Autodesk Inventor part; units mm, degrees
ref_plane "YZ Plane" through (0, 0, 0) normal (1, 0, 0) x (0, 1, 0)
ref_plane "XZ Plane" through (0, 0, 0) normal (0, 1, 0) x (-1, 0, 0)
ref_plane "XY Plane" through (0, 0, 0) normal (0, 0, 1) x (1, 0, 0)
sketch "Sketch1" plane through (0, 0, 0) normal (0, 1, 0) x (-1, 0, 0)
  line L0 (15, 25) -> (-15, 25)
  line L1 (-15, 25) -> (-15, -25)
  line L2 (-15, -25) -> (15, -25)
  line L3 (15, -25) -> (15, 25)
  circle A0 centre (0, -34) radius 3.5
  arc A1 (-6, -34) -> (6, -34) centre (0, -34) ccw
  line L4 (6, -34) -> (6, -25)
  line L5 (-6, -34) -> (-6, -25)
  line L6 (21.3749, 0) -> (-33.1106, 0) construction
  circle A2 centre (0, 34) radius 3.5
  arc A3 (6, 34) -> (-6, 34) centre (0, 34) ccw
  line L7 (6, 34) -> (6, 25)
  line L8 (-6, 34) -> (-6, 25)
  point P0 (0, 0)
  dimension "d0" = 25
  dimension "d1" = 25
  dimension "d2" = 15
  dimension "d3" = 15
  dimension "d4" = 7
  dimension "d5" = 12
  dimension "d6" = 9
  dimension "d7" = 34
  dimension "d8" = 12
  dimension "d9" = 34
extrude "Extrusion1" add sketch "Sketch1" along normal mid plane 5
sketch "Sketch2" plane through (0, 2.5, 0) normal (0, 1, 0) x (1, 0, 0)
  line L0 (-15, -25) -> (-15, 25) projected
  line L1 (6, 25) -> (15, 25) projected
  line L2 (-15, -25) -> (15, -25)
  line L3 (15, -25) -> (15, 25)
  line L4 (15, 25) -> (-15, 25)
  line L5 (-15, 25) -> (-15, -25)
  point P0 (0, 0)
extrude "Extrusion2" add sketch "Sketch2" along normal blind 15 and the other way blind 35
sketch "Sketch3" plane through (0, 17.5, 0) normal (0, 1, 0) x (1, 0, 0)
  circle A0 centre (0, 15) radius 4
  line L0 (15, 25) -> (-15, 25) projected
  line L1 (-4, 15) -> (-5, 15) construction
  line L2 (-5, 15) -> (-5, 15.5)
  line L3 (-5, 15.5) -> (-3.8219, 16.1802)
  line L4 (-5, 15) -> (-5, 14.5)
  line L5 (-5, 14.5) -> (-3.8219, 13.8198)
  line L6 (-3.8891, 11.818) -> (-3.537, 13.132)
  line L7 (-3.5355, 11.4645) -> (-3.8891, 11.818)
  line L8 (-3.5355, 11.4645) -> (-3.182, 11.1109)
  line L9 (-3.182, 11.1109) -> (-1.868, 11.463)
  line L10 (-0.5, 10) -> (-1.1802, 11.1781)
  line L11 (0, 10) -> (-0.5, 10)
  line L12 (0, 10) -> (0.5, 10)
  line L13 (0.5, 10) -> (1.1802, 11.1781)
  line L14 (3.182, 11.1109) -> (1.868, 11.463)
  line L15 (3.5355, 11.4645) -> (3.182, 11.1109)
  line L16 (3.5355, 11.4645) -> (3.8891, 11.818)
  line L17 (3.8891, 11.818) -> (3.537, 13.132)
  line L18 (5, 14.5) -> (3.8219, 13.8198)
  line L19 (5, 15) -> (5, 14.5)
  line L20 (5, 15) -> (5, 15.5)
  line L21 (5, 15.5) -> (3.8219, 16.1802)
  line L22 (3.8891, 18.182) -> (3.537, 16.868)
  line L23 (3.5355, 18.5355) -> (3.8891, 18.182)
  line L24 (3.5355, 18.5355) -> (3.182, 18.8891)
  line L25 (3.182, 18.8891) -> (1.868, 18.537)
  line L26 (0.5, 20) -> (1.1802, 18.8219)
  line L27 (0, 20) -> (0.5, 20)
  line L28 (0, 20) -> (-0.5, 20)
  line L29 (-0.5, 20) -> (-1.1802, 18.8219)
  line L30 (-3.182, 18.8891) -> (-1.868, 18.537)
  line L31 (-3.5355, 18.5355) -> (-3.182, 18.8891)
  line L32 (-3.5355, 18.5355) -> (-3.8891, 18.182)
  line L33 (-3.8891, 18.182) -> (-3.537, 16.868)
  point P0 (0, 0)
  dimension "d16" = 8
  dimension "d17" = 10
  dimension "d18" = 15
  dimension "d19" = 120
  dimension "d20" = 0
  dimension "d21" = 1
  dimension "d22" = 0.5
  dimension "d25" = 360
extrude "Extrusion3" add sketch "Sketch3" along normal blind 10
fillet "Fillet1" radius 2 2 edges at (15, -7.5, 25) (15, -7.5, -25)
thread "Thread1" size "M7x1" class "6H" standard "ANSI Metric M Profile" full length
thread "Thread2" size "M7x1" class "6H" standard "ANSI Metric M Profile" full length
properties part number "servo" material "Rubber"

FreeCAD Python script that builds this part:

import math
import FreeCAD as App
import Part
import Sketcher
from FreeCAD import Vector
Q = App.Units.Quantity


def edges_at(feature, points):
    """Names of the edges that pass closest to the given points."""
    edges = feature.Shape.Edges
    near = lambda p: min(range(len(edges)), key=lambda i: edges[i].distToShape(Part.Vertex(*p))[0])
    return sorted({f"Edge{near(p) + 1}" for p in points})

doc = App.newDocument("Part")
body = doc.addObject("PartDesign::Body", "Body")

# Sketch on XZ plane
sketch1 = body.newObject("Sketcher::SketchObject", "Sketch")
sketch1.AttachmentSupport = (doc.getObject("XZ_Plane"), [""])
sketch1.MapMode = "FlatFace"
sketch1.addGeometry(Part.LineSegment(Vector(-15, -25, 0), Vector(-15, 25, 0)), False)
sketch1.addGeometry(Part.LineSegment(Vector(-15, 25, 0), Vector(-6, 25, 0)), False)
sketch1.addGeometry(Part.LineSegment(Vector(-6, 25, 0), Vector(-6, 34, 0)), False)
sketch1.addGeometry(Part.ArcOfCircle(Part.Circle(Vector(0, 34, 0), Vector(0, 0, 1), 6), math.radians(0), math.radians(180)), False)
sketch1.addGeometry(Part.LineSegment(Vector(6, 34, 0), Vector(6, 25, 0)), False)
sketch1.addGeometry(Part.LineSegment(Vector(6, 25, 0), Vector(15, 25, 0)), False)
sketch1.addGeometry(Part.LineSegment(Vector(15, 25, 0), Vector(15, -25, 0)), False)
sketch1.addGeometry(Part.LineSegment(Vector(15, -25, 0), Vector(6, -25, 0)), False)
sketch1.addGeometry(Part.LineSegment(Vector(6, -25, 0), Vector(6, -34, 0)), False)
sketch1.addGeometry(Part.ArcOfCircle(Part.Circle(Vector(0, -34, 0), Vector(0, 0, 1), 6), math.radians(180), math.radians(360)), False)
sketch1.addGeometry(Part.LineSegment(Vector(-6, -34, 0), Vector(-6, -25, 0)), False)
sketch1.addGeometry(Part.LineSegment(Vector(-6, -25, 0), Vector(-15, -25, 0)), False)
sketch1.addGeometry(Part.Circle(Vector(0, -34, 0), Vector(0, 0, 1), 3.5), False)
sketch1.addGeometry(Part.Circle(Vector(0, 34, 0), Vector(0, 0, 1), 3.5), False)
sketch1.addConstraint(Sketcher.Constraint("Coincident", 0, 2, 1, 1))
sketch1.addConstraint(Sketcher.Constraint("Coincident", 1, 2, 2, 1))
sketch1.addConstraint(Sketcher.Constraint("Tangent", 2, 2, 3, 2))
sketch1.addConstraint(Sketcher.Constraint("Tangent", 3, 1, 4, 1))
sketch1.addConstraint(Sketcher.Constraint("Coincident", 4, 2, 5, 1))
sketch1.addConstraint(Sketcher.Constraint("Coincident", 5, 2, 6, 1))
sketch1.addConstraint(Sketcher.Constraint("Coincident", 6, 2, 7, 1))
sketch1.addConstraint(Sketcher.Constraint("Coincident", 7, 2, 8, 1))
sketch1.addConstraint(Sketcher.Constraint("Tangent", 8, 2, 9, 2))
sketch1.addConstraint(Sketcher.Constraint("Tangent", 9, 1, 10, 1))
sketch1.addConstraint(Sketcher.Constraint("Coincident", 10, 2, 11, 1))
sketch1.addConstraint(Sketcher.Constraint("Coincident", 11, 2, 0, 1))
sketch1.addConstraint(Sketcher.Constraint("Vertical", 0))
sketch1.addConstraint(Sketcher.Constraint("Horizontal", 1))
sketch1.addConstraint(Sketcher.Constraint("Vertical", 2))
sketch1.addConstraint(Sketcher.Constraint("Vertical", 4))
sketch1.addConstraint(Sketcher.Constraint("Horizontal", 5))
sketch1.addConstraint(Sketcher.Constraint("Vertical", 6))
sketch1.addConstraint(Sketcher.Constraint("Horizontal", 7))
sketch1.addConstraint(Sketcher.Constraint("Vertical", 8))
sketch1.addConstraint(Sketcher.Constraint("Vertical", 10))
sketch1.addConstraint(Sketcher.Constraint("Horizontal", 11))
sketch1.addConstraint(Sketcher.Constraint("Coincident", 12, 3, 9, 3))
sketch1.addConstraint(Sketcher.Constraint("Coincident", 13, 3, 3, 3))
sketch1.addConstraint(Sketcher.Constraint("Equal", 3, 9))
sketch1.addConstraint(Sketcher.Constraint("Equal", 12, 13))
sketch1.addConstraint(Sketcher.Constraint("Symmetric", 3, 3, 9, 3, -1, 1))
sketch1.addConstraint(Sketcher.Constraint("Symmetric", 0, 2, 6, 2, -1, 1))
sketch1.addConstraint(Sketcher.Constraint("Symmetric", 1, 2, 4, 2, -2))
sketch1.addConstraint(Sketcher.Constraint("Horizontal", 7, 2, 10, 2))
sketch1.addConstraint(Sketcher.Constraint("Equal", 11, 2))
sketch1.addConstraint(Sketcher.Constraint("Diameter", 12, Q("7 mm")))
sketch1.addConstraint(Sketcher.Constraint("Radius", 3, Q("6 mm")))
sketch1.addConstraint(Sketcher.Constraint("DistanceX", 1, 1, 1, 2, Q("9 mm")))
sketch1.addConstraint(Sketcher.Constraint("DistanceY", -1, 1, 3, 3, Q("34 mm")))
pad1 = body.newObject("PartDesign::Pad", "Pad")
pad1.Profile = sketch1
pad1.Length = 5
pad1.Midplane = True

# Sketch on XZ plane
sketch2 = body.newObject("Sketcher::SketchObject", "Sketch001")
sketch2.AttachmentSupport = (doc.getObject("XZ_Plane"), [""])
sketch2.MapMode = "FlatFace"
sketch2.AttachmentOffset = App.Placement(Vector(0, 0, -2.5), App.Rotation())
sketch2.addGeometry(Part.LineSegment(Vector(-15, -25, 0), Vector(-15, 25, 0)), False)
sketch2.addGeometry(Part.LineSegment(Vector(-15, 25, 0), Vector(15, 25, 0)), False)
sketch2.addGeometry(Part.LineSegment(Vector(15, 25, 0), Vector(15, -25, 0)), False)
sketch2.addGeometry(Part.LineSegment(Vector(15, -25, 0), Vector(-15, -25, 0)), False)
sketch2.addConstraint(Sketcher.Constraint("Coincident", 0, 2, 1, 1))
sketch2.addConstraint(Sketcher.Constraint("Coincident", 1, 2, 2, 1))
sketch2.addConstraint(Sketcher.Constraint("Coincident", 2, 2, 3, 1))
sketch2.addConstraint(Sketcher.Constraint("Coincident", 3, 2, 0, 1))
sketch2.addConstraint(Sketcher.Constraint("Vertical", 0))
sketch2.addConstraint(Sketcher.Constraint("Horizontal", 1))
sketch2.addConstraint(Sketcher.Constraint("Vertical", 2))
sketch2.addConstraint(Sketcher.Constraint("Horizontal", 3))
sketch2.addConstraint(Sketcher.Constraint("Symmetric", 0, 2, 2, 2, -1, 1))
sketch2.addConstraint(Sketcher.Constraint("DistanceX", 1, 1, 1, 2, Q("30 mm")))
sketch2.addConstraint(Sketcher.Constraint("DistanceY", 0, 1, 0, 2, Q("50 mm")))
pad2 = body.newObject("PartDesign::Pad", "Pad001")
pad2.Profile = sketch2
pad2.Type = "TwoLengths"
pad2.Length = 15
pad2.Length2 = 35
pad2.Reversed = True

# Sketch on XZ plane
sketch3 = body.newObject("Sketcher::SketchObject", "Sketch002")
sketch3.AttachmentSupport = (doc.getObject("XZ_Plane"), [""])
sketch3.MapMode = "FlatFace"
sketch3.AttachmentOffset = App.Placement(Vector(0, 0, -17.5), App.Rotation())
sketch3.addGeometry(Part.ArcOfCircle(Part.Circle(Vector(0, -15, 0), Vector(0, 0, 1), 4), math.radians(17.16), math.radians(27.84)), False)
sketch3.addGeometry(Part.LineSegment(Vector(3.82, -13.82, 0), Vector(5, -14.5, 0)), False)
sketch3.addGeometry(Part.LineSegment(Vector(5, -14.5, 0), Vector(5, -15.5, 0)), False)
sketch3.addGeometry(Part.LineSegment(Vector(5, -15.5, 0), Vector(3.82, -16.18, 0)), False)
sketch3.addGeometry(Part.ArcOfCircle(Part.Circle(Vector(0, -15, 0), Vector(0, 0, 1), 4), math.radians(-27.84), math.radians(-17.16)), False)
sketch3.addGeometry(Part.LineSegment(Vector(3.54, -16.87, 0), Vector(3.89, -18.18, 0)), False)
sketch3.addGeometry(Part.LineSegment(Vector(3.89, -18.18, 0), Vector(3.54, -18.54, 0)), False)
sketch3.addGeometry(Part.LineSegment(Vector(3.54, -18.54, 0), Vector(3.18, -18.89, 0)), False)
sketch3.addGeometry(Part.LineSegment(Vector(3.18, -18.89, 0), Vector(1.87, -18.54, 0)), False)
sketch3.addGeometry(Part.ArcOfCircle(Part.Circle(Vector(0, -15, 0), Vector(0, 0, 1), 4), math.radians(-72.84), math.radians(-62.16)), False)
sketch3.addGeometry(Part.LineSegment(Vector(1.18, -18.82, 0), Vector(0.5, -20, 0)), False)
sketch3.addGeometry(Part.LineSegment(Vector(0.5, -20, 0), Vector(-0.5, -20, 0)), False)
sketch3.addGeometry(Part.LineSegment(Vector(-0.5, -20, 0), Vector(-1.18, -18.82, 0)), False)
sketch3.addGeometry(Part.ArcOfCircle(Part.Circle(Vector(0, -15, 0), Vector(0, 0, 1), 4), math.radians(-117.84), math.radians(-107.16)), False)
sketch3.addGeometry(Part.LineSegment(Vector(-1.87, -18.54, 0), Vector(-3.18, -18.89, 0)), False)
sketch3.addGeometry(Part.LineSegment(Vector(-3.18, -18.89, 0), Vector(-3.54, -18.54, 0)), False)
sketch3.addGeometry(Part.LineSegment(Vector(-3.54, -18.54, 0), Vector(-3.89, -18.18, 0)), False)
sketch3.addGeometry(Part.LineSegment(Vector(-3.89, -18.18, 0), Vector(-3.54, -16.87, 0)), False)
sketch3.addGeometry(Part.ArcOfCircle(Part.Circle(Vector(0, -15, 0), Vector(0, 0, 1), 4), math.radians(-162.84), math.radians(-152.16)), False)
sketch3.addGeometry(Part.LineSegment(Vector(-3.82, -16.18, 0), Vector(-5, -15.5, 0)), False)
sketch3.addGeometry(Part.LineSegment(Vector(-5, -15.5, 0), Vector(-5, -14.5, 0)), False)
sketch3.addGeometry(Part.LineSegment(Vector(-5, -14.5, 0), Vector(-3.82, -13.82, 0)), False)
sketch3.addGeometry(Part.ArcOfCircle(Part.Circle(Vector(0, -15, 0), Vector(0, 0, 1), 4), math.radians(152.16), math.radians(162.84)), False)
sketch3.addGeometry(Part.LineSegment(Vector(-3.54, -13.13, 0), Vector(-3.89, -11.82, 0)), False)
sketch3.addGeometry(Part.LineSegment(Vector(-3.89, -11.82, 0), Vector(-3.54, -11.46, 0)), False)
sketch3.addGeometry(Part.LineSegment(Vector(-3.54, -11.46, 0), Vector(-3.18, -11.11, 0)), False)
sketch3.addGeometry(Part.LineSegment(Vector(-3.18, -11.11, 0), Vector(-1.87, -11.46, 0)), False)
sketch3.addGeometry(Part.ArcOfCircle(Part.Circle(Vector(0, -15, 0), Vector(0, 0, 1), 4), math.radians(107.16), math.radians(117.84)), False)
sketch3.addGeometry(Part.LineSegment(Vector(-1.18, -11.18, 0), Vector(-0.5, -10, 0)), False)
sketch3.addGeometry(Part.LineSegment(Vector(-0.5, -10, 0), Vector(0.5, -10, 0)), False)
sketch3.addGeometry(Part.LineSegment(Vector(0.5, -10, 0), Vector(1.18, -11.18, 0)), False)
sketch3.addGeometry(Part.ArcOfCircle(Part.Circle(Vector(0, -15, 0), Vector(0, 0, 1), 4), math.radians(62.16), math.radians(72.84)), False)
sketch3.addGeometry(Part.LineSegment(Vector(1.87, -11.46, 0), Vector(3.18, -11.11, 0)), False)
sketch3.addGeometry(Part.LineSegment(Vector(3.18, -11.11, 0), Vector(3.54, -11.46, 0)), False)
sketch3.addGeometry(Part.LineSegment(Vector(3.54, -11.46, 0), Vector(3.89, -11.82, 0)), False)
sketch3.addGeometry(Part.LineSegment(Vector(3.89, -11.82, 0), Vector(3.54, -13.13, 0)), False)
sketch3.addConstraint(Sketcher.Constraint("Coincident", 0, 1, 1, 1))
sketch3.addConstraint(Sketcher.Constraint("Coincident", 1, 2, 2, 1))
sketch3.addConstraint(Sketcher.Constraint("Coincident", 2, 2, 3, 1))
sketch3.addConstraint(Sketcher.Constraint("Coincident", 3, 2, 4, 2))
sketch3.addConstraint(Sketcher.Constraint("Coincident", 4, 1, 5, 1))
sketch3.addConstraint(Sketcher.Constraint("Coincident", 5, 2, 6, 1))
sketch3.addConstraint(Sketcher.Constraint("Coincident", 6, 2, 7, 1))
sketch3.addConstraint(Sketcher.Constraint("Coincident", 7, 2, 8, 1))
sketch3.addConstraint(Sketcher.Constraint("Coincident", 8, 2, 9, 2))
sketch3.addConstraint(Sketcher.Constraint("Coincident", 9, 1, 10, 1))
sketch3.addConstraint(Sketcher.Constraint("Coincident", 10, 2, 11, 1))
sketch3.addConstraint(Sketcher.Constraint("Coincident", 11, 2, 12, 1))
sketch3.addConstraint(Sketcher.Constraint("Coincident", 12, 2, 13, 2))
sketch3.addConstraint(Sketcher.Constraint("Coincident", 13, 1, 14, 1))
sketch3.addConstraint(Sketcher.Constraint("Coincident", 14, 2, 15, 1))
sketch3.addConstraint(Sketcher.Constraint("Coincident", 15, 2, 16, 1))
sketch3.addConstraint(Sketcher.Constraint("Coincident", 16, 2, 17, 1))
sketch3.addConstraint(Sketcher.Constraint("Coincident", 17, 2, 18, 2))
sketch3.addConstraint(Sketcher.Constraint("Coincident", 18, 1, 19, 1))
sketch3.addConstraint(Sketcher.Constraint("Coincident", 19, 2, 20, 1))
sketch3.addConstraint(Sketcher.Constraint("Coincident", 20, 2, 21, 1))
sketch3.addConstraint(Sketcher.Constraint("Coincident", 21, 2, 22, 2))
sketch3.addConstraint(Sketcher.Constraint("Coincident", 22, 1, 23, 1))
sketch3.addConstraint(Sketcher.Constraint("Coincident", 23, 2, 24, 1))
sketch3.addConstraint(Sketcher.Constraint("Coincident", 24, 2, 25, 1))
sketch3.addConstraint(Sketcher.Constraint("Coincident", 25, 2, 26, 1))
sketch3.addConstraint(Sketcher.Constraint("Coincident", 26, 2, 27, 2))
sketch3.addConstraint(Sketcher.Constraint("Coincident", 27, 1, 28, 1))
sketch3.addConstraint(Sketcher.Constraint("Coincident", 28, 2, 29, 1))
sketch3.addConstraint(Sketcher.Constraint("Coincident", 29, 2, 30, 1))
sketch3.addConstraint(Sketcher.Constraint("Coincident", 30, 2, 31, 2))
sketch3.addConstraint(Sketcher.Constraint("Coincident", 31, 1, 32, 1))
sketch3.addConstraint(Sketcher.Constraint("Coincident", 32, 2, 33, 1))
sketch3.addConstraint(Sketcher.Constraint("Coincident", 33, 2, 34, 1))
sketch3.addConstraint(Sketcher.Constraint("Coincident", 34, 2, 35, 1))
sketch3.addConstraint(Sketcher.Constraint("Coincident", 35, 2, 0, 2))
sketch3.addConstraint(Sketcher.Constraint("Vertical", 2))
sketch3.addConstraint(Sketcher.Constraint("Horizontal", 11))
sketch3.addConstraint(Sketcher.Constraint("Vertical", 20))
sketch3.addConstraint(Sketcher.Constraint("Horizontal", 29))
sketch3.addConstraint(Sketcher.Constraint("Coincident", 4, 3, 0, 3))
sketch3.addConstraint(Sketcher.Constraint("Coincident", 9, 3, 0, 3))
sketch3.addConstraint(Sketcher.Constraint("Coincident", 13, 3, 0, 3))
sketch3.addConstraint(Sketcher.Constraint("Coincident", 18, 3, 0, 3))
sketch3.addConstraint(Sketcher.Constraint("Coincident", 22, 3, 0, 3))
sketch3.addConstraint(Sketcher.Constraint("Coincident", 27, 3, 0, 3))
sketch3.addConstraint(Sketcher.Constraint("Coincident", 31, 3, 0, 3))
sketch3.addConstraint(Sketcher.Constraint("Equal", 0, 4))
sketch3.addConstraint(Sketcher.Constraint("Equal", 4, 9))
sketch3.addConstraint(Sketcher.Constraint("Equal", 9, 13))
sketch3.addConstraint(Sketcher.Constraint("Equal", 13, 18))
sketch3.addConstraint(Sketcher.Constraint("Equal", 18, 22))
sketch3.addConstraint(Sketcher.Constraint("Equal", 22, 27))
sketch3.addConstraint(Sketcher.Constraint("Equal", 27, 31))
sketch3.addConstraint(Sketcher.Constraint("Symmetric", 9, 1, 12, 2, -2))
sketch3.addConstraint(Sketcher.Constraint("Symmetric", 7, 2, 14, 2, -2))
sketch3.addConstraint(Sketcher.Constraint("Symmetric", 6, 2, 15, 2, -2))
sketch3.addConstraint(Sketcher.Constraint("Symmetric", 5, 2, 16, 2, -2))
sketch3.addConstraint(Sketcher.Constraint("Symmetric", 2, 2, 19, 2, -2))
sketch3.addConstraint(Sketcher.Constraint("Symmetric", 25, 2, 32, 2, -2))
sketch3.addConstraint(Sketcher.Constraint("Symmetric", 24, 2, 33, 2, -2))
sketch3.addConstraint(Sketcher.Constraint("Symmetric", 23, 2, 34, 2, -2))
sketch3.addConstraint(Sketcher.Constraint("Parallel", 6, 7))
sketch3.addConstraint(Sketcher.Constraint("Perpendicular", 1, 10))
sketch3.addConstraint(Sketcher.Constraint("Perpendicular", 3, 12))
sketch3.addConstraint(Sketcher.Constraint("Perpendicular", 5, 14))
sketch3.addConstraint(Sketcher.Constraint("Perpendicular", 7, 15))
sketch3.addConstraint(Sketcher.Constraint("Perpendicular", 8, 17))
sketch3.addConstraint(Sketcher.Constraint("Perpendicular", 10, 19))
sketch3.addConstraint(Sketcher.Constraint("Perpendicular", 12, 21))
sketch3.addConstraint(Sketcher.Constraint("Perpendicular", 14, 23))
sketch3.addConstraint(Sketcher.Constraint("Perpendicular", 16, 24))
sketch3.addConstraint(Sketcher.Constraint("Parallel", 24, 25))
sketch3.addConstraint(Sketcher.Constraint("Perpendicular", 17, 26))
sketch3.addConstraint(Sketcher.Constraint("Perpendicular", 19, 28))
sketch3.addConstraint(Sketcher.Constraint("Perpendicular", 21, 30))
sketch3.addConstraint(Sketcher.Constraint("Perpendicular", 23, 32))
sketch3.addConstraint(Sketcher.Constraint("Perpendicular", 26, 35))
sketch3.addConstraint(Sketcher.Constraint("Horizontal", 8, 2, 13, 1))
sketch3.addConstraint(Sketcher.Constraint("Horizontal", 3, 2, 18, 1))
sketch3.addConstraint(Sketcher.Constraint("Horizontal", 1, 2, 20, 2))
sketch3.addConstraint(Sketcher.Constraint("Horizontal", 27, 1, 30, 2))
sketch3.addConstraint(Sketcher.Constraint("Vertical", 0, 1, 3, 2))
sketch3.addConstraint(Sketcher.Constraint("Vertical", 17, 2, 22, 1))
sketch3.addConstraint(Sketcher.Constraint("Vertical", 16, 2, 23, 2))
sketch3.addConstraint(Sketcher.Constraint("Vertical", 15, 2, 24, 2))
sketch3.addConstraint(Sketcher.Constraint("Vertical", 14, 2, 25, 2))
sketch3.addConstraint(Sketcher.Constraint("Vertical", 12, 2, 27, 1))
sketch3.addConstraint(Sketcher.Constraint("Vertical", 11, 2, 28, 2))
sketch3.addConstraint(Sketcher.Constraint("Equal", 29, 2))
sketch3.addConstraint(Sketcher.Constraint("Equal", 3, 5))
sketch3.addConstraint(Sketcher.Constraint("Equal", 6, 7))
sketch3.addConstraint(Sketcher.Constraint("Equal", 5, 8))
sketch3.addConstraint(Sketcher.Constraint("Equal", 8, 10))
sketch3.addConstraint(Sketcher.Constraint("Radius", 0, Q("4 mm")))
sketch3.addConstraint(Sketcher.Constraint("DistanceX", 11, 2, 11, 1, Q("1 mm")))
sketch3.addConstraint(Sketcher.Constraint("DistanceY", 0, 3, -1, 1, Q("15 mm")))
sketch3.addConstraint(Sketcher.Constraint("DistanceY", 28, 2, -1, 1, Q("10 mm")))
sketch3.addConstraint(Sketcher.Constraint("Distance", 6, Q("0.5 mm")))
sketch3.addConstraint(Sketcher.Constraint("Angle", 1, Q("-30.0009 deg")))
sketch3.addConstraint(Sketcher.Constraint("Angle", 5, Q("-74.9994 deg")))
pad3 = body.newObject("PartDesign::Pad", "Pad002")
pad3.Profile = sketch3
pad3.Length = 10
pad3.Reversed = True
doc.recompute()

fillet = body.newObject("PartDesign::Fillet", "Fillet")
fillet.Base = (pad3, edges_at(pad3, [(15, -7.5, 25), (15, -7.5, -25)]))
fillet.Radius = 2

doc.recompute()
